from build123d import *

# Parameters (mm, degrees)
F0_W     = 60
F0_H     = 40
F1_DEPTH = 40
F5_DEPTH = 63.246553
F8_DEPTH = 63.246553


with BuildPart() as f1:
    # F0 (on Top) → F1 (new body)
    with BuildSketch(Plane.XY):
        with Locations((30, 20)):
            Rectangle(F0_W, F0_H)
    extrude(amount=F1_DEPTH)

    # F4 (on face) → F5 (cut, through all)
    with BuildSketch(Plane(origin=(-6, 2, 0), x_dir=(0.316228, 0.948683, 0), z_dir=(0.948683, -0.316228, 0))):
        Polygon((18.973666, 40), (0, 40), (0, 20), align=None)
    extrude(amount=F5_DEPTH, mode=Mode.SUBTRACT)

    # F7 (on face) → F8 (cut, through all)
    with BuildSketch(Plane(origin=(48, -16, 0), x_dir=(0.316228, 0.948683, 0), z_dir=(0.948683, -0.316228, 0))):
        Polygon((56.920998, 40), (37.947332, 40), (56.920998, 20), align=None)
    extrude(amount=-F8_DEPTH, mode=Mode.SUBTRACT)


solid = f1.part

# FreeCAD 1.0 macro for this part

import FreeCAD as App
import Part
import Sketcher

V = App.Vector
Q = App.Units.Quantity


def add_polygon(sketch, points):
    """Adds a closed chain of lines whose ends are joined by coincident constraints."""
    first, n = sketch.GeometryCount, len(points)
    for a, b in zip(points, points[1:] + points[:1]):
        sketch.addGeometry(Part.LineSegment(App.Vector(*a, 0), App.Vector(*b, 0)), False)
    for i in range(n):
        sketch.addConstraint(Sketcher.Constraint("Coincident", first + i, 2, first + (i + 1) % n, 1))

doc = App.newDocument("Part")
body = doc.addObject("PartDesign::Body", "Body")

# Sketch on XY plane
sketch1 = body.newObject("Sketcher::SketchObject", "Sketch")
sketch1.AttachmentSupport = (doc.getObject("XY_Plane"), [""])
sketch1.MapMode = "FlatFace"
add_polygon(sketch1, [(0, 40), (0, 0), (60, 0), (60, 40)])  # lines 0-3
sketch1.addConstraint([
    Sketcher.Constraint("Vertical", 0),
    Sketcher.Constraint("Horizontal", 1),
    Sketcher.Constraint("Vertical", 2),
    Sketcher.Constraint("Horizontal", 3),
    Sketcher.Constraint("Coincident", 0, 2, -1, 1),
    Sketcher.Constraint("DistanceX", 1, 1, 1, 2, Q("60 mm")),
    Sketcher.Constraint("DistanceY", 0, 2, 0, 1, Q("40 mm")),
])
pad1 = body.newObject("PartDesign::Pad", "Pad")
pad1.Profile = sketch1
pad1.Length = 40

# Sketch on an angled plane
sketch2 = body.newObject("Sketcher::SketchObject", "Sketch001")
sketch2.Placement = App.Placement(V(-6, 2, 0), App.Rotation(V(0.316228066, 0.948683198, 0), V(0, 0, 1), V(0.948683198, -0.316228066, 0), "ZXY"))
add_polygon(sketch2, [(18.973666, 40), (0, 40), (0, 20)])  # lines 0-2
sketch2.addConstraint([
    Sketcher.Constraint("Horizontal", 0),
    Sketcher.Constraint("Vertical", 1),
    Sketcher.Constraint("PointOnObject", 0, 2, -2),
    Sketcher.Constraint("DistanceY", 1, 2, 1, 1, Q("20 mm")),
    Sketcher.Constraint("DistanceY", -1, 1, 0, 2, Q("40 mm")),
    Sketcher.Constraint("DistanceX", 0, 2, 0, 1, Q("18.973666 mm")),
])
pocket1 = body.newObject("PartDesign::Pocket", "Pocket")
pocket1.Profile = sketch2
pocket1.Type = "ThroughAll"
pocket1.Reversed = True

# Sketch on an angled plane
sketch3 = body.newObject("Sketcher::SketchObject", "Sketch002")
sketch3.Placement = App.Placement(V(48, -16, 0), App.Rotation(V(0.316228066, 0.948683198, 0), V(0, 0, 1), V(0.948683198, -0.316228066, 0), "ZXY"))
add_polygon(sketch3, [(56.920998, 40), (37.947332, 40), (56.920998, 20)])  # lines 0-2
sketch3.addConstraint([
    Sketcher.Constraint("Horizontal", 0),
    Sketcher.Constraint("Vertical", 2),
    Sketcher.Constraint("DistanceY", 2, 1, 2, 2, Q("20 mm")),
    Sketcher.Constraint("DistanceY", -1, 1, 0, 2, Q("40 mm")),
    Sketcher.Constraint("DistanceX", 0, 2, 0, 1, Q("18.973666 mm")),
    Sketcher.Constraint("DistanceX", -1, 1, 0, 2, Q("37.947332 mm")),
])
pocket2 = body.newObject("PartDesign::Pocket", "Pocket001")
pocket2.Profile = sketch3
pocket2.Type = "ThroughAll"

doc.recompute()
